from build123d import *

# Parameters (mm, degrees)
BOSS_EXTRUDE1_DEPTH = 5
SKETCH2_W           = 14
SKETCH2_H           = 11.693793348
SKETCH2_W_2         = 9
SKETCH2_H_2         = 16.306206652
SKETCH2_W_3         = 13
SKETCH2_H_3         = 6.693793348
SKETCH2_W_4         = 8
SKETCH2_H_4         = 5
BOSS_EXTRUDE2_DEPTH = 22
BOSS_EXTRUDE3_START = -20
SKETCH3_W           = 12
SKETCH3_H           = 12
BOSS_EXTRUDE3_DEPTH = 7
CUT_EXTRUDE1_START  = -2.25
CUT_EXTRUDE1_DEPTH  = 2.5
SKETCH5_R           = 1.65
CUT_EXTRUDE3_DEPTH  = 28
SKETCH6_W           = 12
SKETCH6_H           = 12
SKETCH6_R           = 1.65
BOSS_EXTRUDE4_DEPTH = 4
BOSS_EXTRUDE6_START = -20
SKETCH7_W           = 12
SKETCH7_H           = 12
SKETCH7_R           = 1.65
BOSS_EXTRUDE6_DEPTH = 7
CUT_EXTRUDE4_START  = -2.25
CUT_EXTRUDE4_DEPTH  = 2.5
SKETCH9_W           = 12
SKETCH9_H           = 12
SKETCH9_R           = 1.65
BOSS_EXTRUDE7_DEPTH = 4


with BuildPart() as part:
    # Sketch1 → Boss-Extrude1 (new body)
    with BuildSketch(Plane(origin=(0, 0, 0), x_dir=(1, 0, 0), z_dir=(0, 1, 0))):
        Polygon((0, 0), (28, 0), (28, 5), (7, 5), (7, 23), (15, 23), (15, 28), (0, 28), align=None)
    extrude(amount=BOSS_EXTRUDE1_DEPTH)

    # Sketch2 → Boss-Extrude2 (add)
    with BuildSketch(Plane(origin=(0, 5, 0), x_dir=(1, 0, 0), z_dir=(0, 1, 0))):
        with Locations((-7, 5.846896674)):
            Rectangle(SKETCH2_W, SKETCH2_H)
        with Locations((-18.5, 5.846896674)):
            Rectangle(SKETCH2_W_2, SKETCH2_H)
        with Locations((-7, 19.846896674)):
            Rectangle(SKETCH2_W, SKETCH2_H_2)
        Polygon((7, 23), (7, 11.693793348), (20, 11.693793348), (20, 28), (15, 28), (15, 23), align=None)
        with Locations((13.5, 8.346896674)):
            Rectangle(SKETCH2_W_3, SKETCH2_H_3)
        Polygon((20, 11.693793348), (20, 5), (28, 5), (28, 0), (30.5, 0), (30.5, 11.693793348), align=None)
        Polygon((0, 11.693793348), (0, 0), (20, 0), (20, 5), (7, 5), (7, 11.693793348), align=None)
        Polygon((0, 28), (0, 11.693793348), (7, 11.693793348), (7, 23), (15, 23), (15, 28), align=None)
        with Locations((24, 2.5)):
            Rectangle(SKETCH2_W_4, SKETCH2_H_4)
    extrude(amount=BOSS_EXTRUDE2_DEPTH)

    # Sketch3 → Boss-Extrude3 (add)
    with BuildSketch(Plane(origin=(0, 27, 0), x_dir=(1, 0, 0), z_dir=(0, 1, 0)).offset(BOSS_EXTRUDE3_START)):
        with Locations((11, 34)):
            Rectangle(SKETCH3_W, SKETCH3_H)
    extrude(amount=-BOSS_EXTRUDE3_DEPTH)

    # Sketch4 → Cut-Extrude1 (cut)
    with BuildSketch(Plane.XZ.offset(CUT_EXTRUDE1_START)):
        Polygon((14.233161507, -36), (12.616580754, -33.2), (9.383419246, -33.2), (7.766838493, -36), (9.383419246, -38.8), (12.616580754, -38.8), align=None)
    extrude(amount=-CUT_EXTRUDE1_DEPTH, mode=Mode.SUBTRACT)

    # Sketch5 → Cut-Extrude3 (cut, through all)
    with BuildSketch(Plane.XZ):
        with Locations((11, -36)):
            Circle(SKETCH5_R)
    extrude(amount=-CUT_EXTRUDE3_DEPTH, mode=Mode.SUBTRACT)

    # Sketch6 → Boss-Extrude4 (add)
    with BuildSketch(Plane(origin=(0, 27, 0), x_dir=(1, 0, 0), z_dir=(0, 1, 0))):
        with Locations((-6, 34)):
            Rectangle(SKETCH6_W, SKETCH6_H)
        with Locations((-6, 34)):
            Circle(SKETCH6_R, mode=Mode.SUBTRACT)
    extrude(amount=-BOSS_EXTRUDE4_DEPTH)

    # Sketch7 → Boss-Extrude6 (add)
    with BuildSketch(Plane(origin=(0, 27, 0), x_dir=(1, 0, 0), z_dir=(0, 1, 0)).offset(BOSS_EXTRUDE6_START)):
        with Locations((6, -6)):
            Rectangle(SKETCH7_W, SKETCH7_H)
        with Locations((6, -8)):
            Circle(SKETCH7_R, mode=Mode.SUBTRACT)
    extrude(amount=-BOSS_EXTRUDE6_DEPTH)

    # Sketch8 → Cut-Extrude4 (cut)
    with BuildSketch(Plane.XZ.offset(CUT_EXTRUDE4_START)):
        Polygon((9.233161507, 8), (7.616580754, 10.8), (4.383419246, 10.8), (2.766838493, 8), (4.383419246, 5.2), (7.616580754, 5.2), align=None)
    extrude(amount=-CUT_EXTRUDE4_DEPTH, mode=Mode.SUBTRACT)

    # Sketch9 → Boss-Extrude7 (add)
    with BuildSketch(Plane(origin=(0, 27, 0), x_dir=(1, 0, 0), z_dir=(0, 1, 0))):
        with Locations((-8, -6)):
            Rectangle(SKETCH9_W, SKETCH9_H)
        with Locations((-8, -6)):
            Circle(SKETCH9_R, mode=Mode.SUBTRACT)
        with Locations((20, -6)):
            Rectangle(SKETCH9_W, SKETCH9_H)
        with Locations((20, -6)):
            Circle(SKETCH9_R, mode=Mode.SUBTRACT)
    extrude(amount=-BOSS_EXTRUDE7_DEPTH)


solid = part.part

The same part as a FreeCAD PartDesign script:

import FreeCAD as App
import Part
import Sketcher
from FreeCAD import Vector
Q = App.Units.Quantity

doc = App.newDocument("Part")
body = doc.addObject("PartDesign::Body", "Body")

# Sketch on XZ plane
sketch1 = body.newObject("Sketcher::SketchObject", "Sketch")
sketch1.AttachmentSupport = (doc.getObject("XZ_Plane"), [""])
sketch1.MapMode = "FlatFace"
sketch1.addGeometry(Part.LineSegment(Vector(0, 0, 0), Vector(28, 0, 0)), False)
sketch1.addGeometry(Part.LineSegment(Vector(28, 0, 0), Vector(28, -5, 0)), False)
sketch1.addGeometry(Part.LineSegment(Vector(28, -5, 0), Vector(7, -5, 0)), False)
sketch1.addGeometry(Part.LineSegment(Vector(7, -5, 0), Vector(7, -23, 0)), False)
sketch1.addGeometry(Part.LineSegment(Vector(7, -23, 0), Vector(15, -23, 0)), False)
sketch1.addGeometry(Part.LineSegment(Vector(15, -23, 0), Vector(15, -28, 0)), False)
sketch1.addGeometry(Part.LineSegment(Vector(15, -28, 0), Vector(0, -28, 0)), False)
sketch1.addGeometry(Part.LineSegment(Vector(0, -28, 0), Vector(0, 0, 0)), False)
sketch1.addConstraint(Sketcher.Constraint("Coincident", 0, 2, 1, 1))
sketch1.addConstraint(Sketcher.Constraint("Coincident", 1, 2, 2, 1))
sketch1.addConstraint(Sketcher.Constraint("Coincident", 2, 2, 3, 1))
sketch1.addConstraint(Sketcher.Constraint("Coincident", 3, 2, 4, 1))
sketch1.addConstraint(Sketcher.Constraint("Coincident", 4, 2, 5, 1))
sketch1.addConstraint(Sketcher.Constraint("Coincident", 5, 2, 6, 1))
sketch1.addConstraint(Sketcher.Constraint("Coincident", 6, 2, 7, 1))
sketch1.addConstraint(Sketcher.Constraint("Coincident", 7, 2, 0, 1))
sketch1.addConstraint(Sketcher.Constraint("Horizontal", 0))
sketch1.addConstraint(Sketcher.Constraint("Vertical", 1))
sketch1.addConstraint(Sketcher.Constraint("Horizontal", 2))
sketch1.addConstraint(Sketcher.Constraint("Vertical", 3))
sketch1.addConstraint(Sketcher.Constraint("Horizontal", 4))
sketch1.addConstraint(Sketcher.Constraint("Vertical", 5))
sketch1.addConstraint(Sketcher.Constraint("Horizontal", 6))
sketch1.addConstraint(Sketcher.Constraint("Vertical", 7))
sketch1.addConstraint(Sketcher.Constraint("Coincident", 7, 2, -1, 1))
sketch1.addConstraint(Sketcher.Constraint("Equal", 1, 5))
sketch1.addConstraint(Sketcher.Constraint("Equal", 0, 7))
sketch1.addConstraint(Sketcher.Constraint("DistanceX", 0, 1, 0, 2, Q("28 mm")))
sketch1.addConstraint(Sketcher.Constraint("DistanceX", 2, 2, 2, 1, Q("21 mm")))
sketch1.addConstraint(Sketcher.Constraint("DistanceX", 4, 1, 4, 2, Q("8 mm")))
sketch1.addConstraint(Sketcher.Constraint("DistanceY", 1, 2, 1, 1, Q("5 mm")))
pad1 = body.newObject("PartDesign::Pad", "Pad")
pad1.Profile = sketch1
pad1.Length = 5
pad1.Reversed = True

# Sketch on XZ plane
sketch2 = body.newObject("Sketcher::SketchObject", "Sketch001")
sketch2.AttachmentSupport = (doc.getObject("XZ_Plane"), [""])
sketch2.MapMode = "FlatFace"
sketch2.AttachmentOffset = App.Placement(Vector(0, 0, -5), App.Rotation())
sketch2.addGeometry(Part.LineSegment(Vector(-14, -28, 0), Vector(-14, -11.693793, 0)), False)
sketch2.addGeometry(Part.LineSegment(Vector(-14, -11.693793, 0), Vector(-23, -11.693793, 0)), False)
sketch2.addGeometry(Part.LineSegment(Vector(-23, -11.693793, 0), Vector(-23, 0, 0)), False)
sketch2.addGeometry(Part.LineSegment(Vector(-23, 0, 0), Vector(30.5, 0, 0)), False)
sketch2.addGeometry(Part.LineSegment(Vector(30.5, 0, 0), Vector(30.5, -11.693793, 0)), False)
sketch2.addGeometry(Part.LineSegment(Vector(30.5, -11.693793, 0), Vector(20, -11.693793, 0)), False)
sketch2.addGeometry(Part.LineSegment(Vector(20, -11.693793, 0), Vector(20, -28, 0)), False)
sketch2.addGeometry(Part.LineSegment(Vector(20, -28, 0), Vector(-14, -28, 0)), False)
sketch2.addConstraint(Sketcher.Constraint("Coincident", 0, 2, 1, 1))
sketch2.addConstraint(Sketcher.Constraint("Coincident", 1, 2, 2, 1))
sketch2.addConstraint(Sketcher.Constraint("Coincident", 2, 2, 3, 1))
sketch2.addConstraint(Sketcher.Constraint("Coincident", 3, 2, 4, 1))
sketch2.addConstraint(Sketcher.Constraint("Coincident", 4, 2, 5, 1))
sketch2.addConstraint(Sketcher.Constraint("Coincident", 5, 2, 6, 1))
sketch2.addConstraint(Sketcher.Constraint("Coincident", 6, 2, 7, 1))
sketch2.addConstraint(Sketcher.Constraint("Coincident", 7, 2, 0, 1))
sketch2.addConstraint(Sketcher.Constraint("Vertical", 0))
sketch2.addConstraint(Sketcher.Constraint("Horizontal", 1))
sketch2.addConstraint(Sketcher.Constraint("Vertical", 2))
sketch2.addConstraint(Sketcher.Constraint("Horizontal", 3))
sketch2.addConstraint(Sketcher.Constraint("Vertical", 4))
sketch2.addConstraint(Sketcher.Constraint("Horizontal", 5))
sketch2.addConstraint(Sketcher.Constraint("Vertical", 6))
sketch2.addConstraint(Sketcher.Constraint("Horizontal", 7))
sketch2.addConstraint(Sketcher.Constraint("PointOnObject", 2, 2, -1))
sketch2.addConstraint(Sketcher.Constraint("Horizontal", 1, 2, 4, 2))
sketch2.addConstraint(Sketcher.Constraint("DistanceX", 1, 2, 1, 1, Q("9 mm")))
sketch2.addConstraint(Sketcher.Constraint("DistanceX", 7, 2, 7, 1, Q("34 mm")))
sketch2.addConstraint(Sketcher.Constraint("DistanceX", 3, 1, 3, 2, Q("53.5 mm")))
sketch2.addConstraint(Sketcher.Constraint("DistanceX", 0, 2, -1, 1, Q("14 mm")))
sketch2.addConstraint(Sketcher.Constraint("DistanceY", 6, 2, -1, 1, Q("28 mm")))
sketch2.addConstraint(Sketcher.Constraint("DistanceY", 0, 1, 0, 2, Q("16.306207 mm")))
pad2 = body.newObject("PartDesign::Pad", "Pad001")
pad2.Profile = sketch2
pad2.Length = 22
pad2.Reversed = True

# Sketch on XZ plane
sketch3 = body.newObject("Sketcher::SketchObject", "Sketch002")
sketch3.AttachmentSupport = (doc.getObject("XZ_Plane"), [""])
sketch3.MapMode = "FlatFace"
sketch3.AttachmentOffset = App.Placement(Vector(0, 0, -7), App.Rotation())
sketch3.addGeometry(Part.LineSegment(Vector(5, -40, 0), Vector(5, -28, 0)), False)
sketch3.addGeometry(Part.LineSegment(Vector(5, -28, 0), Vector(17, -28, 0)), False)
sketch3.addGeometry(Part.LineSegment(Vector(17, -28, 0), Vector(17, -40, 0)), False)
sketch3.addGeometry(Part.LineSegment(Vector(17, -40, 0), Vector(5, -40, 0)), False)
sketch3.addConstraint(Sketcher.Constraint("Coincident", 0, 2, 1, 1))
sketch3.addConstraint(Sketcher.Constraint("Coincident", 1, 2, 2, 1))
sketch3.addConstraint(Sketcher.Constraint("Coincident", 2, 2, 3, 1))
sketch3.addConstraint(Sketcher.Constraint("Coincident", 3, 2, 0, 1))
sketch3.addConstraint(Sketcher.Constraint("Vertical", 0))
sketch3.addConstraint(Sketcher.Constraint("Horizontal", 1))
sketch3.addConstraint(Sketcher.Constraint("Vertical", 2))
sketch3.addConstraint(Sketcher.Constraint("Horizontal", 3))
sketch3.addConstraint(Sketcher.Constraint("Equal", 3, 0))
sketch3.addConstraint(Sketcher.Constraint("DistanceX", 1, 1, 1, 2, Q("12 mm")))
sketch3.addConstraint(Sketcher.Constraint("DistanceX", -1, 1, 0, 2, Q("5 mm")))
sketch3.addConstraint(Sketcher.Constraint("DistanceY", 0, 2, -1, 1, Q("28 mm")))
pad3 = body.newObject("PartDesign::Pad", "Pad002")
pad3.Profile = sketch3
pad3.Length = 7

# Sketch on XZ plane
sketch4 = body.newObject("Sketcher::SketchObject", "Sketch003")
sketch4.AttachmentSupport = (doc.getObject("XZ_Plane"), [""])
sketch4.MapMode = "FlatFace"
sketch4.AttachmentOffset = App.Placement(Vector(0, 0, -2.25), App.Rotation())
sketch4.addGeometry(Part.LineSegment(Vector(14.233162, -36, 0), Vector(12.616581, -33.2, 0)), False)
sketch4.addGeometry(Part.LineSegment(Vector(12.616581, -33.2, 0), Vector(9.383419, -33.2, 0)), False)
sketch4.addGeometry(Part.LineSegment(Vector(9.383419, -33.2, 0), Vector(7.766838, -36, 0)), False)
sketch4.addGeometry(Part.LineSegment(Vector(7.766838, -36, 0), Vector(9.383419, -38.8, 0)), False)
sketch4.addGeometry(Part.LineSegment(Vector(9.383419, -38.8, 0), Vector(12.616581, -38.8, 0)), False)
sketch4.addGeometry(Part.LineSegment(Vector(12.616581, -38.8, 0), Vector(14.233162, -36, 0)), False)
sketch4.addConstraint(Sketcher.Constraint("Coincident", 0, 2, 1, 1))
sketch4.addConstraint(Sketcher.Constraint("Coincident", 1, 2, 2, 1))
sketch4.addConstraint(Sketcher.Constraint("Coincident", 2, 2, 3, 1))
sketch4.addConstraint(Sketcher.Constraint("Coincident", 3, 2, 4, 1))
sketch4.addConstraint(Sketcher.Constraint("Coincident", 4, 2, 5, 1))
sketch4.addConstraint(Sketcher.Constraint("Coincident", 5, 2, 0, 1))
sketch4.addConstraint(Sketcher.Constraint("Horizontal", 1))
sketch4.addConstraint(Sketcher.Constraint("Horizontal", 4))
sketch4.addConstraint(Sketcher.Constraint("Parallel", 0, 3))
sketch4.addConstraint(Sketcher.Constraint("Parallel", 2, 5))
sketch4.addConstraint(Sketcher.Constraint("Horizontal", 2, 2, 5, 2))
sketch4.addConstraint(Sketcher.Constraint("Vertical", 1, 2, 3, 2))
sketch4.addConstraint(Sketcher.Constraint("Vertical", 0, 2, 4, 2))
sketch4.addConstraint(Sketcher.Constraint("Angle", 0, Q("120 deg")))
sketch4.addConstraint(Sketcher.Constraint("DistanceY", 2, 2, -1, 1, Q("36 mm")))
sketch4.addConstraint(Sketcher.Constraint("DistanceY", 0, 2, -1, 1, Q("33.2 mm")))
sketch4.addConstraint(Sketcher.Constraint("DistanceX", 1, 2, 1, 1, Q("3.233162 mm")))
sketch4.addConstraint(Sketcher.Constraint("DistanceX", -1, 1, 0, 2, Q("12.616581 mm")))
pocket1 = body.newObject("PartDesign::Pocket", "Pocket")
pocket1.Profile = sketch4
pocket1.Length = 2.5

# Sketch on XZ plane
sketch5 = body.newObject("Sketcher::SketchObject", "Sketch004")
sketch5.AttachmentSupport = (doc.getObject("XZ_Plane"), [""])
sketch5.MapMode = "FlatFace"
sketch5.addGeometry(Part.Circle(Vector(11, -36, 0), Vector(0, 0, 1), 1.65), False)
sketch5.addConstraint(Sketcher.Constraint("Diameter", 0, Q("3.3 mm")))
sketch5.addConstraint(Sketcher.Constraint("DistanceX", -1, 1, 0, 3, Q("11 mm")))
sketch5.addConstraint(Sketcher.Constraint("DistanceY", 0, 3, -1, 1, Q("36 mm")))
pocket2 = body.newObject("PartDesign::Pocket", "Pocket001")
pocket2.Profile = sketch5
pocket2.Type = "ThroughAll"

# Sketch on XZ plane
sketch6 = body.newObject("Sketcher::SketchObject", "Sketch005")
sketch6.AttachmentSupport = (doc.getObject("XZ_Plane"), [""])
sketch6.MapMode = "FlatFace"
sketch6.AttachmentOffset = App.Placement(Vector(0, 0, -27), App.Rotation())
sketch6.addGeometry(Part.LineSegment(Vector(-12, -40, 0), Vector(-12, -28, 0)), False)
sketch6.addGeometry(Part.LineSegment(Vector(-12, -28, 0), Vector(0, -28, 0)), False)
sketch6.addGeometry(Part.LineSegment(Vector(0, -28, 0), Vector(0, -40, 0)), False)
sketch6.addGeometry(Part.LineSegment(Vector(0, -40, 0), Vector(-12, -40, 0)), False)
sketch6.addGeometry(Part.Circle(Vector(-6, -34, 0), Vector(0, 0, 1), 1.65), False)
sketch6.addConstraint(Sketcher.Constraint("Coincident", 0, 2, 1, 1))
sketch6.addConstraint(Sketcher.Constraint("Coincident", 1, 2, 2, 1))
sketch6.addConstraint(Sketcher.Constraint("Coincident", 2, 2, 3, 1))
sketch6.addConstraint(Sketcher.Constraint("Coincident", 3, 2, 0, 1))
sketch6.addConstraint(Sketcher.Constraint("Vertical", 0))
sketch6.addConstraint(Sketcher.Constraint("Horizontal", 1))
sketch6.addConstraint(Sketcher.Constraint("Vertical", 2))
sketch6.addConstraint(Sketcher.Constraint("Horizontal", 3))
sketch6.addConstraint(Sketcher.Constraint("PointOnObject", 1, 2, -2))
sketch6.addConstraint(Sketcher.Constraint("Equal", 3, 0))
sketch6.addConstraint(Sketcher.Constraint("Diameter", 4, Q("3.3 mm")))
sketch6.addConstraint(Sketcher.Constraint("DistanceX", 1, 1, 1, 2, Q("12 mm")))
sketch6.addConstraint(Sketcher.Constraint("DistanceX", 4, 3, -1, 1, Q("6 mm")))
sketch6.addConstraint(Sketcher.Constraint("DistanceY", 4, 3, -1, 1, Q("34 mm")))
sketch6.addConstraint(Sketcher.Constraint("DistanceY", 0, 2, -1, 1, Q("28 mm")))
pad4 = body.newObject("PartDesign::Pad", "Pad003")
pad4.Profile = sketch6
pad4.Length = 4

# Sketch on XZ plane
sketch7 = body.newObject("Sketcher::SketchObject", "Sketch006")
sketch7.AttachmentSupport = (doc.getObject("XZ_Plane"), [""])
sketch7.MapMode = "FlatFace"
sketch7.AttachmentOffset = App.Placement(Vector(0, 0, -7), App.Rotation())
sketch7.addGeometry(Part.LineSegment(Vector(0, 0, 0), Vector(0, 12, 0)), False)
sketch7.addGeometry(Part.LineSegment(Vector(0, 12, 0), Vector(12, 12, 0)), False)
sketch7.addGeometry(Part.LineSegment(Vector(12, 12, 0), Vector(12, 0, 0)), False)
sketch7.addGeometry(Part.LineSegment(Vector(12, 0, 0), Vector(0, 0, 0)), False)
sketch7.addGeometry(Part.Circle(Vector(6, 8, 0), Vector(0, 0, 1), 1.65), False)
sketch7.addConstraint(Sketcher.Constraint("Coincident", 0, 2, 1, 1))
sketch7.addConstraint(Sketcher.Constraint("Coincident", 1, 2, 2, 1))
sketch7.addConstraint(Sketcher.Constraint("Coincident", 2, 2, 3, 1))
sketch7.addConstraint(Sketcher.Constraint("Coincident", 3, 2, 0, 1))
sketch7.addConstraint(Sketcher.Constraint("Vertical", 0))
sketch7.addConstraint(Sketcher.Constraint("Horizontal", 1))
sketch7.addConstraint(Sketcher.Constraint("Vertical", 2))
sketch7.addConstraint(Sketcher.Constraint("Horizontal", 3))
sketch7.addConstraint(Sketcher.Constraint("Coincident", 3, 2, -1, 1))
sketch7.addConstraint(Sketcher.Constraint("Equal", 3, 0))
sketch7.addConstraint(Sketcher.Constraint("Diameter", 4, Q("3.3 mm")))
sketch7.addConstraint(Sketcher.Constraint("DistanceX", 1, 1, 1, 2, Q("12 mm")))
sketch7.addConstraint(Sketcher.Constraint("DistanceX", -1, 1, 4, 3, Q("6 mm")))
sketch7.addConstraint(Sketcher.Constraint("DistanceY", -1, 1, 4, 3, Q("8 mm")))
pad5 = body.newObject("PartDesign::Pad", "Pad004")
pad5.Profile = sketch7
pad5.Length = 7

# Sketch on XZ plane
sketch8 = body.newObject("Sketcher::SketchObject", "Sketch007")
sketch8.AttachmentSupport = (doc.getObject("XZ_Plane"), [""])
sketch8.MapMode = "FlatFace"
sketch8.AttachmentOffset = App.Placement(Vector(0, 0, -2.25), App.Rotation())
sketch8.addGeometry(Part.LineSegment(Vector(9.233162, 8, 0), Vector(7.616581, 10.8, 0)), False)
sketch8.addGeometry(Part.LineSegment(Vector(7.616581, 10.8, 0), Vector(4.383419, 10.8, 0)), False)
sketch8.addGeometry(Part.LineSegment(Vector(4.383419, 10.8, 0), Vector(2.766838, 8, 0)), False)
sketch8.addGeometry(Part.LineSegment(Vector(2.766838, 8, 0), Vector(4.383419, 5.2, 0)), False)
sketch8.addGeometry(Part.LineSegment(Vector(4.383419, 5.2, 0), Vector(7.616581, 5.2, 0)), False)
sketch8.addGeometry(Part.LineSegment(Vector(7.616581, 5.2, 0), Vector(9.233162, 8, 0)), False)
sketch8.addConstraint(Sketcher.Constraint("Coincident", 0, 2, 1, 1))
sketch8.addConstraint(Sketcher.Constraint("Coincident", 1, 2, 2, 1))
sketch8.addConstraint(Sketcher.Constraint("Coincident", 2, 2, 3, 1))
sketch8.addConstraint(Sketcher.Constraint("Coincident", 3, 2, 4, 1))
sketch8.addConstraint(Sketcher.Constraint("Coincident", 4, 2, 5, 1))
sketch8.addConstraint(Sketcher.Constraint("Coincident", 5, 2, 0, 1))
sketch8.addConstraint(Sketcher.Constraint("Horizontal", 1))
sketch8.addConstraint(Sketcher.Constraint("Horizontal", 4))
sketch8.addConstraint(Sketcher.Constraint("Parallel", 0, 3))
sketch8.addConstraint(Sketcher.Constraint("Parallel", 2, 5))
sketch8.addConstraint(Sketcher.Constraint("Horizontal", 2, 2, 5, 2))
sketch8.addConstraint(Sketcher.Constraint("Vertical", 1, 2, 3, 2))
sketch8.addConstraint(Sketcher.Constraint("Vertical", 0, 2, 4, 2))
sketch8.addConstraint(Sketcher.Constraint("Angle", 0, Q("120 deg")))
sketch8.addConstraint(Sketcher.Constraint("DistanceY", -1, 1, 2, 2, Q("8 mm")))
sketch8.addConstraint(Sketcher.Constraint("DistanceY", -1, 1, 0, 2, Q("10.8 mm")))
sketch8.addConstraint(Sketcher.Constraint("DistanceX", 1, 2, 1, 1, Q("3.233162 mm")))
sketch8.addConstraint(Sketcher.Constraint("DistanceX", -1, 1, 0, 2, Q("7.616581 mm")))
pocket3 = body.newObject("PartDesign::Pocket", "Pocket002")
pocket3.Profile = sketch8
pocket3.Length = 2.5

# Sketch on XZ plane
sketch9 = body.newObject("Sketcher::SketchObject", "Sketch008")
sketch9.AttachmentSupport = (doc.getObject("XZ_Plane"), [""])
sketch9.MapMode = "FlatFace"
sketch9.AttachmentOffset = App.Placement(Vector(0, 0, -27), App.Rotation())
sketch9.addGeometry(Part.LineSegment(Vector(-14, 0, 0), Vector(-14, 12, 0)), False)
sketch9.addGeometry(Part.LineSegment(Vector(-14, 12, 0), Vector(-2, 12, 0)), False)
sketch9.addGeometry(Part.LineSegment(Vector(-2, 12, 0), Vector(-2, 0, 0)), False)
sketch9.addGeometry(Part.LineSegment(Vector(-2, 0, 0), Vector(-14, 0, 0)), False)
sketch9.addGeometry(Part.Circle(Vector(-8, 6, 0), Vector(0, 0, 1), 1.65), False)
sketch9.addGeometry(Part.LineSegment(Vector(14, 0, 0), Vector(14, 12, 0)), False)
sketch9.addGeometry(Part.LineSegment(Vector(14, 12, 0), Vector(26, 12, 0)), False)
sketch9.addGeometry(Part.LineSegment(Vector(26, 12, 0), Vector(26, 0, 0)), False)
sketch9.addGeometry(Part.LineSegment(Vector(26, 0, 0), Vector(14, 0, 0)), False)
sketch9.addGeometry(Part.Circle(Vector(20, 6, 0), Vector(0, 0, 1), 1.65), False)
sketch9.addConstraint(Sketcher.Constraint("Coincident", 0, 2, 1, 1))
sketch9.addConstraint(Sketcher.Constraint("Coincident", 1, 2, 2, 1))
sketch9.addConstraint(Sketcher.Constraint("Coincident", 2, 2, 3, 1))
sketch9.addConstraint(Sketcher.Constraint("Coincident", 3, 2, 0, 1))
sketch9.addConstraint(Sketcher.Constraint("Coincident", 5, 2, 6, 1))
sketch9.addConstraint(Sketcher.Constraint("Coincident", 6, 2, 7, 1))
sketch9.addConstraint(Sketcher.Constraint("Coincident", 7, 2, 8, 1))
sketch9.addConstraint(Sketcher.Constraint("Coincident", 8, 2, 5, 1))
sketch9.addConstraint(Sketcher.Constraint("Vertical", 0))
sketch9.addConstraint(Sketcher.Constraint("Horizontal", 1))
sketch9.addConstraint(Sketcher.Constraint("Vertical", 2))
sketch9.addConstraint(Sketcher.Constraint("Horizontal", 3))
sketch9.addConstraint(Sketcher.Constraint("Vertical", 5))
sketch9.addConstraint(Sketcher.Constraint("Horizontal", 6))
sketch9.addConstraint(Sketcher.Constraint("Vertical", 7))
sketch9.addConstraint(Sketcher.Constraint("Horizontal", 8))
sketch9.addConstraint(Sketcher.Constraint("Equal", 4, 9))
sketch9.addConstraint(Sketcher.Constraint("Symmetric", 3, 2, 8, 2, -1, 1))
sketch9.addConstraint(Sketcher.Constraint("PointOnObject", 2, 2, -1))
sketch9.addConstraint(Sketcher.Constraint("Horizontal", 4, 3, 9, 3))
sketch9.addConstraint(Sketcher.Constraint("Horizontal", 1, 2, 5, 2))
sketch9.addConstraint(Sketcher.Constraint("Equal", 3, 6))
sketch9.addConstraint(Sketcher.Constraint("Equal", 8, 0))
sketch9.addConstraint(Sketcher.Constraint("Diameter", 4, Q("3.3 mm")))
sketch9.addConstraint(Sketcher.Constraint("DistanceX", 1, 1, 1, 2, Q("12 mm")))
sketch9.addConstraint(Sketcher.Constraint("DistanceX", 4, 3, -1, 1, Q("8 mm")))
sketch9.addConstraint(Sketcher.Constraint("DistanceY", -1, 1, 4, 3, Q("6 mm")))
sketch9.addConstraint(Sketcher.Constraint("DistanceX", -1, 1, 9, 3, Q("20 mm")))
sketch9.addConstraint(Sketcher.Constraint("DistanceX", 0, 2, -1, 1, Q("14 mm")))
pad6 = body.newObject("PartDesign::Pad", "Pad005")
pad6.Profile = sketch9
pad6.Length = 4

doc.recompute()
